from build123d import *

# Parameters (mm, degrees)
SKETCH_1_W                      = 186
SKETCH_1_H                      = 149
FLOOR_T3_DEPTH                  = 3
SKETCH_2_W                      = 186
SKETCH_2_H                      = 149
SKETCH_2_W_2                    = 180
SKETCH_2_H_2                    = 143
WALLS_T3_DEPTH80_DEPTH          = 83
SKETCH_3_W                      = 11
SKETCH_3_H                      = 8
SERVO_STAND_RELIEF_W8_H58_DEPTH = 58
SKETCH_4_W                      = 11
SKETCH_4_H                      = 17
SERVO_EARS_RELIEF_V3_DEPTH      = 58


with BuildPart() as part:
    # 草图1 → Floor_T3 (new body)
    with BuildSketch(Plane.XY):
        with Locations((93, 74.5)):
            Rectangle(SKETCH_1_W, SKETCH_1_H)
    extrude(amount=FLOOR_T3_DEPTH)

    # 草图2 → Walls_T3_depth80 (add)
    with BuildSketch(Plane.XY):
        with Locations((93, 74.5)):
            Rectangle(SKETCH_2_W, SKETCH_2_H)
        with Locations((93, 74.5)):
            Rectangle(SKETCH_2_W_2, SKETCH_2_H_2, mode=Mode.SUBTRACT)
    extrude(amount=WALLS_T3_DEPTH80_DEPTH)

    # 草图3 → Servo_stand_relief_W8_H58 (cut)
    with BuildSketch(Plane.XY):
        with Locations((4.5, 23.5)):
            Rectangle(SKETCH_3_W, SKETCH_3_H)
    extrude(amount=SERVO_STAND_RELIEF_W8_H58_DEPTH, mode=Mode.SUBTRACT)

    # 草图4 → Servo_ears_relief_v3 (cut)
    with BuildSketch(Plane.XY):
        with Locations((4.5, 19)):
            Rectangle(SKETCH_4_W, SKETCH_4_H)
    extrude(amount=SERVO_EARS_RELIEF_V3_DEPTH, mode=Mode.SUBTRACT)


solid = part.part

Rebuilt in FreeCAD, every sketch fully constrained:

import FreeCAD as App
import Part
import Sketcher
Q = App.Units.Quantity

doc = App.newDocument("Part")
body = doc.addObject("PartDesign::Body", "Body")

sketch1 = body.newObject("Sketcher::SketchObject", "Sketch")
sketch1.AttachmentSupport = (doc.getObject("XY_Plane"), [""])
sketch1.MapMode = "FlatFace"
sketch1.addGeometry([
    Part.LineSegment(App.Vector(0, 149, 0), App.Vector(0, 0, 0)),
    Part.LineSegment(App.Vector(0, 0, 0), App.Vector(186, 0, 0)),
    Part.LineSegment(App.Vector(186, 0, 0), App.Vector(186, 149, 0)),
    Part.LineSegment(App.Vector(186, 149, 0), App.Vector(0, 149, 0)),
], False)
sketch1.addConstraint([
    Sketcher.Constraint("Coincident", 0, 2, 1, 1),
    Sketcher.Constraint("Coincident", 1, 2, 2, 1),
    Sketcher.Constraint("Coincident", 2, 2, 3, 1),
    Sketcher.Constraint("Coincident", 3, 2, 0, 1),
    Sketcher.Constraint("Vertical", 0),
    Sketcher.Constraint("Horizontal", 1),
    Sketcher.Constraint("Vertical", 2),
    Sketcher.Constraint("Horizontal", 3),
    Sketcher.Constraint("Coincident", 0, 2, -1, 1),
    Sketcher.Constraint("DistanceX", 1, 1, 1, 2, Q("186 mm")),
    Sketcher.Constraint("DistanceY", 0, 2, 0, 1, Q("149 mm")),
])
pad1 = body.newObject("PartDesign::Pad", "Pad")
pad1.Profile = sketch1
pad1.Length = 3

sketch2 = body.newObject("Sketcher::SketchObject", "Sketch001")
sketch2.AttachmentSupport = (doc.getObject("XY_Plane"), [""])
sketch2.MapMode = "FlatFace"
sketch2.addGeometry([
    Part.LineSegment(App.Vector(0, 149, 0), App.Vector(0, 0, 0)),
    Part.LineSegment(App.Vector(0, 0, 0), App.Vector(186, 0, 0)),
    Part.LineSegment(App.Vector(186, 0, 0), App.Vector(186, 149, 0)),
    Part.LineSegment(App.Vector(186, 149, 0), App.Vector(0, 149, 0)),
    Part.LineSegment(App.Vector(183, 3, 0), App.Vector(3, 3, 0)),
    Part.LineSegment(App.Vector(3, 3, 0), App.Vector(3, 146, 0)),
    Part.LineSegment(App.Vector(3, 146, 0), App.Vector(183, 146, 0)),
    Part.LineSegment(App.Vector(183, 146, 0), App.Vector(183, 3, 0)),
], False)
sketch2.addConstraint([
    Sketcher.Constraint("Coincident", 0, 2, 1, 1),
    Sketcher.Constraint("Coincident", 1, 2, 2, 1),
    Sketcher.Constraint("Coincident", 2, 2, 3, 1),
    Sketcher.Constraint("Coincident", 3, 2, 0, 1),
    Sketcher.Constraint("Coincident", 4, 2, 5, 1),
    Sketcher.Constraint("Coincident", 5, 2, 6, 1),
    Sketcher.Constraint("Coincident", 6, 2, 7, 1),
    Sketcher.Constraint("Coincident", 7, 2, 4, 1),
    Sketcher.Constraint("Vertical", 0),
    Sketcher.Constraint("Horizontal", 1),
    Sketcher.Constraint("Vertical", 2),
    Sketcher.Constraint("Horizontal", 3),
    Sketcher.Constraint("Horizontal", 4),
    Sketcher.Constraint("Vertical", 5),
    Sketcher.Constraint("Horizontal", 6),
    Sketcher.Constraint("Vertical", 7),
    Sketcher.Constraint("Coincident", 0, 2, -1, 1),
    Sketcher.Constraint("DistanceX", 1, 1, 1, 2, Q("186 mm")),
    Sketcher.Constraint("DistanceX", 4, 2, 4, 1, Q("180 mm")),
    Sketcher.Constraint("DistanceY", 0, 2, 0, 1, Q("149 mm")),
    Sketcher.Constraint("DistanceY", 5, 1, 5, 2, Q("143 mm")),
    Sketcher.Constraint("DistanceX", -1, 1, 4, 2, Q("3 mm")),
    Sketcher.Constraint("DistanceY", -1, 1, 4, 2, Q("3 mm")),
])
pad2 = body.newObject("PartDesign::Pad", "Pad001")
pad2.Profile = sketch2
pad2.Length = 83

sketch3 = body.newObject("Sketcher::SketchObject", "Sketch002")
sketch3.AttachmentSupport = (doc.getObject("XY_Plane"), [""])
sketch3.MapMode = "FlatFace"
sketch3.addGeometry([
    Part.LineSegment(App.Vector(-1, 27.5, 0), App.Vector(-1, 19.5, 0)),
    Part.LineSegment(App.Vector(-1, 19.5, 0), App.Vector(10, 19.5, 0)),
    Part.LineSegment(App.Vector(10, 19.5, 0), App.Vector(10, 27.5, 0)),
    Part.LineSegment(App.Vector(10, 27.5, 0), App.Vector(-1, 27.5, 0)),
], False)
sketch3.addConstraint([
    Sketcher.Constraint("Coincident", 0, 2, 1, 1),
    Sketcher.Constraint("Coincident", 1, 2, 2, 1),
    Sketcher.Constraint("Coincident", 2, 2, 3, 1),
    Sketcher.Constraint("Coincident", 3, 2, 0, 1),
    Sketcher.Constraint("Vertical", 0),
    Sketcher.Constraint("Horizontal", 1),
    Sketcher.Constraint("Vertical", 2),
    Sketcher.Constraint("Horizontal", 3),
    Sketcher.Constraint("DistanceX", 1, 1, 1, 2, Q("11 mm")),
    Sketcher.Constraint("DistanceY", 0, 2, 0, 1, Q("8 mm")),
    Sketcher.Constraint("DistanceX", 0, 2, -1, 1, Q("1 mm")),
    Sketcher.Constraint("DistanceY", -1, 1, 0, 2, Q("19.5 mm")),
])
pocket1 = body.newObject("PartDesign::Pocket", "Pocket")
pocket1.Profile = sketch3
pocket1.Length = 58
pocket1.Reversed = True

sketch4 = body.newObject("Sketcher::SketchObject", "Sketch003")
sketch4.AttachmentSupport = (doc.getObject("XY_Plane"), [""])
sketch4.MapMode = "FlatFace"
sketch4.addGeometry([
    Part.LineSegment(App.Vector(-1, 27.5, 0), App.Vector(-1, 10.5, 0)),
    Part.LineSegment(App.Vector(-1, 10.5, 0), App.Vector(10, 10.5, 0)),
    Part.LineSegment(App.Vector(10, 10.5, 0), App.Vector(10, 27.5, 0)),
    Part.LineSegment(App.Vector(10, 27.5, 0), App.Vector(-1, 27.5, 0)),
], False)
sketch4.addConstraint([
    Sketcher.Constraint("Coincident", 0, 2, 1, 1),
    Sketcher.Constraint("Coincident", 1, 2, 2, 1),
    Sketcher.Constraint("Coincident", 2, 2, 3, 1),
    Sketcher.Constraint("Coincident", 3, 2, 0, 1),
    Sketcher.Constraint("Vertical", 0),
    Sketcher.Constraint("Horizontal", 1),
    Sketcher.Constraint("Vertical", 2),
    Sketcher.Constraint("Horizontal", 3),
    Sketcher.Constraint("DistanceX", 1, 1, 1, 2, Q("11 mm")),
    Sketcher.Constraint("DistanceY", 0, 2, 0, 1, Q("17 mm")),
    Sketcher.Constraint("DistanceX", 0, 2, -1, 1, Q("1 mm")),
    Sketcher.Constraint("DistanceY", -1, 1, 0, 2, Q("10.5 mm")),
])
pocket2 = body.newObject("PartDesign::Pocket", "Pocket001")
pocket2.Profile = sketch4
pocket2.Length = 58
pocket2.Reversed = True

doc.recompute()
